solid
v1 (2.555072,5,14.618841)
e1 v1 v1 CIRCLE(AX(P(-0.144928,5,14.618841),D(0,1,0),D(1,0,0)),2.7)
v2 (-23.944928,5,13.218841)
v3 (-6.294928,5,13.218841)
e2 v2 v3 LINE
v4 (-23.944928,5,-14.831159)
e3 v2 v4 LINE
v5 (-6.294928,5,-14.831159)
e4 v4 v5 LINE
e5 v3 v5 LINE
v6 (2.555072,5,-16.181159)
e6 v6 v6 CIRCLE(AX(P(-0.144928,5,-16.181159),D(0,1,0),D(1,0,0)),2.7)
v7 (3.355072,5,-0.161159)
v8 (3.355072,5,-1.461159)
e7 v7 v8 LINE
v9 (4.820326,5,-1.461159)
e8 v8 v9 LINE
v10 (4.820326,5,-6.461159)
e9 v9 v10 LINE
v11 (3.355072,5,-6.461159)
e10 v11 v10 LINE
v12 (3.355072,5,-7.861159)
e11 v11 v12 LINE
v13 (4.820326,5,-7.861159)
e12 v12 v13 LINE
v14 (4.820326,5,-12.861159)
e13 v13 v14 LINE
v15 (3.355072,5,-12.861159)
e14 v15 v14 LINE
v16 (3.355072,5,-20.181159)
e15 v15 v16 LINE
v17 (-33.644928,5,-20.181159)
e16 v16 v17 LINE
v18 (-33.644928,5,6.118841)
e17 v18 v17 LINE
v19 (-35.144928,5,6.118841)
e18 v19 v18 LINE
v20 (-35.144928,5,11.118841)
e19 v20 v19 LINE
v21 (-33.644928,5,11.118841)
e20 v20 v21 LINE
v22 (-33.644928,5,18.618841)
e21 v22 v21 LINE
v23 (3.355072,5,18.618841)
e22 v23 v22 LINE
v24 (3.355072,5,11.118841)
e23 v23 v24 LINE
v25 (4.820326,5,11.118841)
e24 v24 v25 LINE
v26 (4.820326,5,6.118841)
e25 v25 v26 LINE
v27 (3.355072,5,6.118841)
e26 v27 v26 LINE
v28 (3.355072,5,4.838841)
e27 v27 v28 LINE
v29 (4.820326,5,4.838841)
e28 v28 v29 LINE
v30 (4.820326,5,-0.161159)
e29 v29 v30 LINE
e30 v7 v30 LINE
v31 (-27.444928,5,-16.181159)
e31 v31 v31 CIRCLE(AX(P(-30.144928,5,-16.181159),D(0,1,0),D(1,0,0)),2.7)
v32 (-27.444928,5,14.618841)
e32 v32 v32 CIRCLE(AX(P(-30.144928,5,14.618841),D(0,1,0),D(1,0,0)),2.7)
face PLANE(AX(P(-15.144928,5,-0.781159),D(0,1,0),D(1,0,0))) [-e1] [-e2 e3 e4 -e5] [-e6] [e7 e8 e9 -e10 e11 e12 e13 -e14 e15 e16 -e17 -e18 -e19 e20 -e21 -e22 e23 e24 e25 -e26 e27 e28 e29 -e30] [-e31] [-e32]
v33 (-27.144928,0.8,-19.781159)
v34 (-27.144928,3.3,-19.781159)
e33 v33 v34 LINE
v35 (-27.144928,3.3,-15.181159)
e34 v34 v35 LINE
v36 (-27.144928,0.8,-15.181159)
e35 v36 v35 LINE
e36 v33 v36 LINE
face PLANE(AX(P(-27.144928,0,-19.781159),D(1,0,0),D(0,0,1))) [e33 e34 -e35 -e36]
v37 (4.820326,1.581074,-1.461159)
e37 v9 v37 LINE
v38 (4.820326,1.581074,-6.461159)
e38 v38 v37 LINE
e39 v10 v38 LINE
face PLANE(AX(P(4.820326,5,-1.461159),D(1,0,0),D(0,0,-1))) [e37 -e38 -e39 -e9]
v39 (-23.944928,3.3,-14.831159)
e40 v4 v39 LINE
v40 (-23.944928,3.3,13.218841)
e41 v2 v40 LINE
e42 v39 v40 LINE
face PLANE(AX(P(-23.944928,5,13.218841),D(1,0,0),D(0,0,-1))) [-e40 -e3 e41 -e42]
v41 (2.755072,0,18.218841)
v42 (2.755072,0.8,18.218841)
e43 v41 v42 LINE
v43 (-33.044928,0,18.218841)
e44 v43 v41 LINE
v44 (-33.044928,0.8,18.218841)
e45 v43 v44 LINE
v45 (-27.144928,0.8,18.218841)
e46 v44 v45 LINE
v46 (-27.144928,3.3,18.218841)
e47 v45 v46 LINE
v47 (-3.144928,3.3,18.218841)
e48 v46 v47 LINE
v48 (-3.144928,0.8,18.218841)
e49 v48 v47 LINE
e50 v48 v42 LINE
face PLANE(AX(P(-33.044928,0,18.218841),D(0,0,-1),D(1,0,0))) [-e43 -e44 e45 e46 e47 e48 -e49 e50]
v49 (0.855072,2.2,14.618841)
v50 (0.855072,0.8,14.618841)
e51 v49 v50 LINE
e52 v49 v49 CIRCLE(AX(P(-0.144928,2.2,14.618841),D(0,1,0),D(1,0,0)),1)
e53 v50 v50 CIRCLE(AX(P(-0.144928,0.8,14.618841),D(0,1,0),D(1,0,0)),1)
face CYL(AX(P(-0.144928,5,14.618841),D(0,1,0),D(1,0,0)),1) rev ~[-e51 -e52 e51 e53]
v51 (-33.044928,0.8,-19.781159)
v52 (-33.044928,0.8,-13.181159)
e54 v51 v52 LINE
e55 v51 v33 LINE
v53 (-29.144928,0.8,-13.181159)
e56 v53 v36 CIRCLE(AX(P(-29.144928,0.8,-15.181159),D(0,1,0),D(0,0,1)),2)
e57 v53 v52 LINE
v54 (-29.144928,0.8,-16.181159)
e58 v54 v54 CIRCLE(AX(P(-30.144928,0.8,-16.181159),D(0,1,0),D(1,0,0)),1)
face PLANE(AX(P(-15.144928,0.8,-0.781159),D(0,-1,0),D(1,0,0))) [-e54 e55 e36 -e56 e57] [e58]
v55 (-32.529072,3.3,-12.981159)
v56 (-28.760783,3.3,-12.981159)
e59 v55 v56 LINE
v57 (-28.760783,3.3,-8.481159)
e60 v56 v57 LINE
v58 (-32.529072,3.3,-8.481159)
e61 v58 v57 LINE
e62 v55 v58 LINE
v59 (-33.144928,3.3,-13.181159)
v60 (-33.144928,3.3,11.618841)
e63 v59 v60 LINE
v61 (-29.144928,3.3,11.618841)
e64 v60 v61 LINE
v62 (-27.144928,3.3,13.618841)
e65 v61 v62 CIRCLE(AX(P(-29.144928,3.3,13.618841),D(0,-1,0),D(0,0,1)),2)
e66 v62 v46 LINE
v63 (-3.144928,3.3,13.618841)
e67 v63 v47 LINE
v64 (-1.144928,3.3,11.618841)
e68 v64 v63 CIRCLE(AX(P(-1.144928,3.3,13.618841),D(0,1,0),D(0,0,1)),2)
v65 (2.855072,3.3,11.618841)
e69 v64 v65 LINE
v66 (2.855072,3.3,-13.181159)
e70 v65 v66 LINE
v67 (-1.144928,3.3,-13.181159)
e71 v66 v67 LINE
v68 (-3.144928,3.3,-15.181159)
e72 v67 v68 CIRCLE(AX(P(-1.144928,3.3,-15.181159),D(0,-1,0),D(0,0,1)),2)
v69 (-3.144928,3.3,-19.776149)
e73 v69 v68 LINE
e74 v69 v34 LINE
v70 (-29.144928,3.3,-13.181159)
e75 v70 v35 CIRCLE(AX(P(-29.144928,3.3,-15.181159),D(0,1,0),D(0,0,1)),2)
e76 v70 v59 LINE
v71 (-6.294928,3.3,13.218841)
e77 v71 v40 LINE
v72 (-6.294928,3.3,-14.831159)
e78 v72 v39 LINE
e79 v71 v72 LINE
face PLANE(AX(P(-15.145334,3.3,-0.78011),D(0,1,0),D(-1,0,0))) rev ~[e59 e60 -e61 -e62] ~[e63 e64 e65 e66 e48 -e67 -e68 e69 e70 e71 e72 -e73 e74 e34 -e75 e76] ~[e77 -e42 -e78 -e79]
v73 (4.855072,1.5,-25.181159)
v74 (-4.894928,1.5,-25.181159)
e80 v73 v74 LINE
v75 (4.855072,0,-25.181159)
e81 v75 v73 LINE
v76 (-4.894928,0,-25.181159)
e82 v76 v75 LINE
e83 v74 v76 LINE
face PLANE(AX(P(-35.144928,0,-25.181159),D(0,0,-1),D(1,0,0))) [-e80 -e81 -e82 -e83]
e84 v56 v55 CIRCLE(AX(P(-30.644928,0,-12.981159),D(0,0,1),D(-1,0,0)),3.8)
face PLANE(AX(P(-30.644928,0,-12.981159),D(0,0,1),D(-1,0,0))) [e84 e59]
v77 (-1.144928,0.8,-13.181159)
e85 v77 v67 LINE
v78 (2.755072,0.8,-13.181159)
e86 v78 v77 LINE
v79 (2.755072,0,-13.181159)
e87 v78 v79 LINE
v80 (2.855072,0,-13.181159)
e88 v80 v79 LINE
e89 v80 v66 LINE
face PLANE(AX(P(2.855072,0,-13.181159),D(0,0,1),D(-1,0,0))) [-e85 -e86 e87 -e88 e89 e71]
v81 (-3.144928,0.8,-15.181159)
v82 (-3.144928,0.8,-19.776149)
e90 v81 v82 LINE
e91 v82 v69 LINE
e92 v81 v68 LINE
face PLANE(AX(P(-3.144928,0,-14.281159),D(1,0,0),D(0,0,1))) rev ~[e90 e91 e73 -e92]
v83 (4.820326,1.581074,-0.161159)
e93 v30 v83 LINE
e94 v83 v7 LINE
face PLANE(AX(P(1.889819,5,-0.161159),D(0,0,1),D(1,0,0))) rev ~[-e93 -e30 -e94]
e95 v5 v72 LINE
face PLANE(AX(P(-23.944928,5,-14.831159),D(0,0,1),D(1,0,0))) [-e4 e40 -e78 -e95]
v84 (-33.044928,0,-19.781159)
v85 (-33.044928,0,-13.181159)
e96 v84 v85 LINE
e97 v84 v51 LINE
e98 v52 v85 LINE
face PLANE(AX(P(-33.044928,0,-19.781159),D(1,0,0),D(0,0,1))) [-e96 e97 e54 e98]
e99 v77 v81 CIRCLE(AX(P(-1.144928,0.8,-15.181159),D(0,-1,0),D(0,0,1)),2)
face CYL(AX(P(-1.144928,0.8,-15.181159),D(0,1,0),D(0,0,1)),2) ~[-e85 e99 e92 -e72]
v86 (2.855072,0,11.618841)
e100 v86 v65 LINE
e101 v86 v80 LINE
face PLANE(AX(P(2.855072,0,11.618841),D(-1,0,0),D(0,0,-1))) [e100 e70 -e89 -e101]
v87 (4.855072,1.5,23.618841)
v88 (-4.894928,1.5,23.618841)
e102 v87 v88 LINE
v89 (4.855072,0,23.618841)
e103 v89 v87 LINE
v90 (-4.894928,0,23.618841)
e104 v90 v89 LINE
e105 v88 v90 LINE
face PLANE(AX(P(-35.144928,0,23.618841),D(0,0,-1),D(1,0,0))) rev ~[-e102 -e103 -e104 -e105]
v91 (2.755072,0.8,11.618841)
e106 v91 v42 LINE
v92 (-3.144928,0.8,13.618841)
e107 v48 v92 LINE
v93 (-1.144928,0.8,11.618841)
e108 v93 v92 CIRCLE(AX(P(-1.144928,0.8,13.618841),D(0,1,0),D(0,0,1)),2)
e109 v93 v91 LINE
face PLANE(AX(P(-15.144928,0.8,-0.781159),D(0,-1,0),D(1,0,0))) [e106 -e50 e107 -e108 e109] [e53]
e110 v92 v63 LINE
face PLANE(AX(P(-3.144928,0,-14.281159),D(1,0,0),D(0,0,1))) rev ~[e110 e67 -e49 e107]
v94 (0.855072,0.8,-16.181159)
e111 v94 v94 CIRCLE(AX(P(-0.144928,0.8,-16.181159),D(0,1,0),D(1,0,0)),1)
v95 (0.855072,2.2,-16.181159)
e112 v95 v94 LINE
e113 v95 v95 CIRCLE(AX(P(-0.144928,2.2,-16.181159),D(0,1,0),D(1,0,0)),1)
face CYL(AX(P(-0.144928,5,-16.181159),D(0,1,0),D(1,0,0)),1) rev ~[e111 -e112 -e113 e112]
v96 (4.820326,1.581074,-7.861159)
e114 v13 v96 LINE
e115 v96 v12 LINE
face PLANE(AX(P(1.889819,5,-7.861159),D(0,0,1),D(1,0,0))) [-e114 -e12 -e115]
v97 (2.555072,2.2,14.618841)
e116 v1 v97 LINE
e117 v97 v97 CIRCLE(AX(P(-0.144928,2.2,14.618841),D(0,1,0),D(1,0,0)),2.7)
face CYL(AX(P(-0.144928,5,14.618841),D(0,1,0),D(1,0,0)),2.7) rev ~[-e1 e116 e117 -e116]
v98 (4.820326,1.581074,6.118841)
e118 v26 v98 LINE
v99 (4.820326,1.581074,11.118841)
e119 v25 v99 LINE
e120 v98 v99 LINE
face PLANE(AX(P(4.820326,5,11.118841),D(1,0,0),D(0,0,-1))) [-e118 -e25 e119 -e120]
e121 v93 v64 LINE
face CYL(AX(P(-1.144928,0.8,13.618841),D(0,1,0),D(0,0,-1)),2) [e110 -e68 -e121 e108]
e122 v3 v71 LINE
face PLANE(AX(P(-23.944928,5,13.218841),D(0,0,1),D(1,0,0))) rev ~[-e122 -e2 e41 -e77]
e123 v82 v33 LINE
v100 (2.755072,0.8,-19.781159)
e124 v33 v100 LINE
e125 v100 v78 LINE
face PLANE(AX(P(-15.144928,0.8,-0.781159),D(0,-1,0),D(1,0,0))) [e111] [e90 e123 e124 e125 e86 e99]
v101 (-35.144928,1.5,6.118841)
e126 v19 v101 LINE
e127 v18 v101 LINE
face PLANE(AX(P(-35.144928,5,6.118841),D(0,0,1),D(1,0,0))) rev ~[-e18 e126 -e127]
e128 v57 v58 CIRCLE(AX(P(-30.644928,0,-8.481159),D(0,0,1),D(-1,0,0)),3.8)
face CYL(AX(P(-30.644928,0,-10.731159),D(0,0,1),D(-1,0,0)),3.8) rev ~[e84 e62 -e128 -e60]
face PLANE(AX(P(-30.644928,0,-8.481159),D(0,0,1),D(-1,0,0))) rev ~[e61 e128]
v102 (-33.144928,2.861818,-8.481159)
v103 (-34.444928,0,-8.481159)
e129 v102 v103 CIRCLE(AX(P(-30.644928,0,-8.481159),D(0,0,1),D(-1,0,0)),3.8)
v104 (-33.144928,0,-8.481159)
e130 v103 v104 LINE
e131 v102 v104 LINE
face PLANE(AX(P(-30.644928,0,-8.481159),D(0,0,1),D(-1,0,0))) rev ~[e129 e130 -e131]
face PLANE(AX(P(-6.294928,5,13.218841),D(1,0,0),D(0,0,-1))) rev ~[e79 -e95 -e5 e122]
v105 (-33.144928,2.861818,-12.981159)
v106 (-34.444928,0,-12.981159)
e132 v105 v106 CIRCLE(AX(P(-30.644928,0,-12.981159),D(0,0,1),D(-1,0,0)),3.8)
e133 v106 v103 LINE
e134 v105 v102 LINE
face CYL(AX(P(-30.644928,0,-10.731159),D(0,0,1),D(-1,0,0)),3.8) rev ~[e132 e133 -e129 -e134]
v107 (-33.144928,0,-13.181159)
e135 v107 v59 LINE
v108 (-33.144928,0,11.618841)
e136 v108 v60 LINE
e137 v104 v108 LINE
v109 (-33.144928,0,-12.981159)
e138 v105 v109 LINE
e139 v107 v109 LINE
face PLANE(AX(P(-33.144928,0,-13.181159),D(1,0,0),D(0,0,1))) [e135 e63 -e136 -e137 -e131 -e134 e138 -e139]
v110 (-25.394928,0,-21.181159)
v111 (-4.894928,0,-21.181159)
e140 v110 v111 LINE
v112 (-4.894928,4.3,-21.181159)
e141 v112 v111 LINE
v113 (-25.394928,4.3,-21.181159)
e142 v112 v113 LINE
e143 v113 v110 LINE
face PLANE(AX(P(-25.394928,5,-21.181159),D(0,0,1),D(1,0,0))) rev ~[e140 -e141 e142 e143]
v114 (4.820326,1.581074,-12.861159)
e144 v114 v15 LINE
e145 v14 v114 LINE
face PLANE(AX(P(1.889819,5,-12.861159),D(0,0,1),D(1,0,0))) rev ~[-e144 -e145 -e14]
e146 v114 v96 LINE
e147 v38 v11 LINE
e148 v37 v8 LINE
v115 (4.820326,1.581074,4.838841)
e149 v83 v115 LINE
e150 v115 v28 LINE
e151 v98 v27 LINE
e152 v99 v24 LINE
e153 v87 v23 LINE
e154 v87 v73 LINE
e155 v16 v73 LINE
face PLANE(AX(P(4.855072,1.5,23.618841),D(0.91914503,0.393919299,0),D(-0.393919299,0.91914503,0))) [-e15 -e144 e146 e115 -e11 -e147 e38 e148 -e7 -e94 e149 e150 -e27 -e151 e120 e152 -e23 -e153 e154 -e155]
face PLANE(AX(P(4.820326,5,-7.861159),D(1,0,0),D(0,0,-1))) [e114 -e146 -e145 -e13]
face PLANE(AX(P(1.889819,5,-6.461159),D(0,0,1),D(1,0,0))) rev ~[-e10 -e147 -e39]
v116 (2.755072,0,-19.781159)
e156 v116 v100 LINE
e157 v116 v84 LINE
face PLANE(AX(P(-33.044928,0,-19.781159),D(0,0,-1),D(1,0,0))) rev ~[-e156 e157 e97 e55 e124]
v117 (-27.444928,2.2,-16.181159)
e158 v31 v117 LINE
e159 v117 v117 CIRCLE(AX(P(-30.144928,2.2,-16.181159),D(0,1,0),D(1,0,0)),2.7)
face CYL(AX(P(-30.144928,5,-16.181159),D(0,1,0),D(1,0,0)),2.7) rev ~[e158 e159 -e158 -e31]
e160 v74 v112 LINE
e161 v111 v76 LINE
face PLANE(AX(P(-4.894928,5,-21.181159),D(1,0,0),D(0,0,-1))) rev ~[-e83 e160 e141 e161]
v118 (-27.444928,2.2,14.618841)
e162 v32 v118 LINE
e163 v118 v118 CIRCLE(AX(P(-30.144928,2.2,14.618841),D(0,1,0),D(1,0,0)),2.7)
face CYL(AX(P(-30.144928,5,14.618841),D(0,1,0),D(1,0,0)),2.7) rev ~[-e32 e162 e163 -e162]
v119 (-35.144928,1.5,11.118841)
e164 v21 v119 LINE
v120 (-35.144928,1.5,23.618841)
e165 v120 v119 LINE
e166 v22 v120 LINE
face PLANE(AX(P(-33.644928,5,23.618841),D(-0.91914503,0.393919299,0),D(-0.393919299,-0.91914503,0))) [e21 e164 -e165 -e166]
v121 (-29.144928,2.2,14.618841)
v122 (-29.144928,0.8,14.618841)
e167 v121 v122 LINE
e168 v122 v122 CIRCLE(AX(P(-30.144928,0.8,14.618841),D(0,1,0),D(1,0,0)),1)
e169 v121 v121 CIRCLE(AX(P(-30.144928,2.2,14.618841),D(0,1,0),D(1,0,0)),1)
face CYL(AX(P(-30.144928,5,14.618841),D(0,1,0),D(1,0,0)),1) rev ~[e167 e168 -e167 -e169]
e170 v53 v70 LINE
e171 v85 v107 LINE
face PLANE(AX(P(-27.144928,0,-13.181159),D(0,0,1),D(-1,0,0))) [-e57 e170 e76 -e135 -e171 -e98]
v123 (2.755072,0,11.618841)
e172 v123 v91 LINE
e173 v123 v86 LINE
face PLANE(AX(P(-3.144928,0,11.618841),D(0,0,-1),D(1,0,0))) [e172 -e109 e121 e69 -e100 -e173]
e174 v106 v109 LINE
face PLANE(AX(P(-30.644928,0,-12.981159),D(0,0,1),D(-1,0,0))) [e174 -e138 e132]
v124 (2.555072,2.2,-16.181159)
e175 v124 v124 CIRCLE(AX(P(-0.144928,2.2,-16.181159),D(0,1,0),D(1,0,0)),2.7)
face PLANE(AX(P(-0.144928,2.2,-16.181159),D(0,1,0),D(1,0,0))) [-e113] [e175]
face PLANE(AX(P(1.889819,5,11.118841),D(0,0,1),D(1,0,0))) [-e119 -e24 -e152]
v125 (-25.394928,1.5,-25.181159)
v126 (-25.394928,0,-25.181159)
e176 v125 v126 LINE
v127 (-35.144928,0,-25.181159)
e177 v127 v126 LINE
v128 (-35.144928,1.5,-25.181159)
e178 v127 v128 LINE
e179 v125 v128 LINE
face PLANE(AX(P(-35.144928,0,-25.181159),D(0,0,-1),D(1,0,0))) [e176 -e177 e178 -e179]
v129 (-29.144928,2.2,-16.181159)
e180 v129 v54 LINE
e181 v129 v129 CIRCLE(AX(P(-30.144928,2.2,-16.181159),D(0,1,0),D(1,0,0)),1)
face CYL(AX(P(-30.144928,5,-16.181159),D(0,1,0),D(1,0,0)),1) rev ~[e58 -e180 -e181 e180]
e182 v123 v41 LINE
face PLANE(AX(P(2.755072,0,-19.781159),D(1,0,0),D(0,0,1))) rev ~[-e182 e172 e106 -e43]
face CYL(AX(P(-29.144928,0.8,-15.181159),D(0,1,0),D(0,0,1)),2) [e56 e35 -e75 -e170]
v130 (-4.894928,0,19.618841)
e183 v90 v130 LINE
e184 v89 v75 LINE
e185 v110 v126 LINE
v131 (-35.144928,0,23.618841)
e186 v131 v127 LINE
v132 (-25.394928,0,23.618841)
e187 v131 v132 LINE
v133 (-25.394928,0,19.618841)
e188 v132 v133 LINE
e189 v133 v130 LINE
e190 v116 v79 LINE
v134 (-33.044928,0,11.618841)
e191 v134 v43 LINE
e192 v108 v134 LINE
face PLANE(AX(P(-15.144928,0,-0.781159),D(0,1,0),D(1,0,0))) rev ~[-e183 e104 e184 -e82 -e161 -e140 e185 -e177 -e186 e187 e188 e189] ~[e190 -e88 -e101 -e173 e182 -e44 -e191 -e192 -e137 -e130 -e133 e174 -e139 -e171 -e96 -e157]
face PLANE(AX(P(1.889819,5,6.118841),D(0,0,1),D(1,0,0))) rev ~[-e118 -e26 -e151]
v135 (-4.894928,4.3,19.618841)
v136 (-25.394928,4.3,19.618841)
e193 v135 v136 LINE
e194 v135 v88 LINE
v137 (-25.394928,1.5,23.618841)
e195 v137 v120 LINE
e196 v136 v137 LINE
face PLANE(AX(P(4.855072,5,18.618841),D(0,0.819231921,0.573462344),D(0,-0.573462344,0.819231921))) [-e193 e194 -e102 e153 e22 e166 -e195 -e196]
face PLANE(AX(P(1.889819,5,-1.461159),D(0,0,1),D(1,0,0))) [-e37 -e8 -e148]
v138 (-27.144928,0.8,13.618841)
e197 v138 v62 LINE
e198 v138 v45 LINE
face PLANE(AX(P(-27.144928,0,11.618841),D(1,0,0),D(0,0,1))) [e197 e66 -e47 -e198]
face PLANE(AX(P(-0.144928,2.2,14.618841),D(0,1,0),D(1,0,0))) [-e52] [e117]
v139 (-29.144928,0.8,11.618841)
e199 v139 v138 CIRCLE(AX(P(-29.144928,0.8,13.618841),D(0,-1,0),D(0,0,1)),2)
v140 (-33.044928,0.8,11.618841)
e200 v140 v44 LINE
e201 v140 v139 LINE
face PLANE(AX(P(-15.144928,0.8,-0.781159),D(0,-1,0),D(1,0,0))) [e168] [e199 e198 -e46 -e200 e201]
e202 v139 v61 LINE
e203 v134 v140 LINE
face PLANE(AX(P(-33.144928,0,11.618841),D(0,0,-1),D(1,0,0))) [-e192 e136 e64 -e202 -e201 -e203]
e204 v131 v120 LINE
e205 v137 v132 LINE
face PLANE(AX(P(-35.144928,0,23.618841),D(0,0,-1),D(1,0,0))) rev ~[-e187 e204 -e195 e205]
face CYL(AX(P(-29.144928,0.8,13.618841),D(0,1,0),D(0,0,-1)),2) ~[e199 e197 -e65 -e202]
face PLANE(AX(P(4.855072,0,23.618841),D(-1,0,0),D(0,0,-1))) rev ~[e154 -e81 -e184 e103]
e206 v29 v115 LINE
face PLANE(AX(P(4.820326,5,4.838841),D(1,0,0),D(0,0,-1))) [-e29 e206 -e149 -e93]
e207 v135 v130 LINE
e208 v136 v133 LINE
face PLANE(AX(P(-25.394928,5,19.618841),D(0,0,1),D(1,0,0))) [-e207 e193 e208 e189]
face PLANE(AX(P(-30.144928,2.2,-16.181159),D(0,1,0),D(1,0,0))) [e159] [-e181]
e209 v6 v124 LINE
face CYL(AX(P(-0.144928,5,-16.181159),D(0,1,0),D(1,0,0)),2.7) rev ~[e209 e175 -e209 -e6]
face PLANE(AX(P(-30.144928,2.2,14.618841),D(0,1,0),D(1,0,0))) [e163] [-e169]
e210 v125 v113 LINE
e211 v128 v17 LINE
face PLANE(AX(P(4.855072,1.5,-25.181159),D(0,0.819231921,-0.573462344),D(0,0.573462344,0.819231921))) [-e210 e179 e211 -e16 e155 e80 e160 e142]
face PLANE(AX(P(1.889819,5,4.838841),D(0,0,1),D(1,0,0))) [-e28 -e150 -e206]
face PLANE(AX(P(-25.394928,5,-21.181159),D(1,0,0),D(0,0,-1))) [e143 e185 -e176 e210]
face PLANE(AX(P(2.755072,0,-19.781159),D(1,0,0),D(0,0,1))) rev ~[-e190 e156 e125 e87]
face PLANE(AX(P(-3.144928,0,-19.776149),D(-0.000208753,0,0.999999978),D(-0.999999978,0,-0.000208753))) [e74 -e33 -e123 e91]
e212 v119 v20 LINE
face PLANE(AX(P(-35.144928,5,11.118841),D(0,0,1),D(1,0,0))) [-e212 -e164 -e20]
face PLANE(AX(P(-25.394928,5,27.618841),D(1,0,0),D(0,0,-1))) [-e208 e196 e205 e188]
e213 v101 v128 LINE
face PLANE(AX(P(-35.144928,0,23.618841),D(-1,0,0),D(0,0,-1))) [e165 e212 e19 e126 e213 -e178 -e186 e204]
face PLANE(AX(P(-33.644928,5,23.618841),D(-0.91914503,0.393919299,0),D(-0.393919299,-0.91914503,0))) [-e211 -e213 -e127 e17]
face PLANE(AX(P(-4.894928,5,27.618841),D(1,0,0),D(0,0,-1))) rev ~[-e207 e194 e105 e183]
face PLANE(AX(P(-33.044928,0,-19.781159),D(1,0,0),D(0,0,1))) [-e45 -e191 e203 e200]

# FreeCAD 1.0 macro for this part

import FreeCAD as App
import Part
import Sketcher
Q = App.Units.Quantity


def edges_at(feature, points):
    """Names of the edges that pass closest to the given points."""
    edges = feature.Shape.Edges
    near = lambda p: min(range(len(edges)), key=lambda i: edges[i].distToShape(Part.Vertex(*p))[0])
    return sorted({f"Edge{near(p) + 1}" for p in points})

doc = App.newDocument("Part")
body = doc.addObject("PartDesign::Body", "Body")

sketch1 = doc.addObject("Sketcher::SketchObject", "Sketch")
body.addObject(sketch1)
sketch1.AttachmentSupport = (doc.XZ_Plane, [""])
sketch1.MapMode = "FlatFace"
sketch1.addGeometry([
    Part.LineSegment(App.Vector(-35, -25, 0), App.Vector(-35, 24, 0)),
    Part.LineSegment(App.Vector(-35, 24, 0), App.Vector(5, 24, 0)),
    Part.LineSegment(App.Vector(5, 24, 0), App.Vector(5, -25, 0)),
    Part.LineSegment(App.Vector(5, -25, 0), App.Vector(-35, -25, 0)),
], False)
sketch1.addConstraint([
    Sketcher.Constraint("Coincident", 0, 2, 1, 1),
    Sketcher.Constraint("Coincident", 1, 2, 2, 1),
    Sketcher.Constraint("Coincident", 2, 2, 3, 1),
    Sketcher.Constraint("Coincident", 3, 2, 0, 1),
    Sketcher.Constraint("Vertical", 0),
    Sketcher.Constraint("Horizontal", 1),
    Sketcher.Constraint("Vertical", 2),
    Sketcher.Constraint("Horizontal", 3),
    Sketcher.Constraint("DistanceX", 1, 1, 1, 2, Q("40 mm")),
    Sketcher.Constraint("DistanceY", 0, 1, 0, 2, Q("48.8 mm")),
    Sketcher.Constraint("DistanceY", -1, 1, 0, 2, Q("23.618841 mm")),
    Sketcher.Constraint("DistanceX", 0, 2, -1, 1, Q("35.144928 mm")),
])
pad1 = doc.addObject("PartDesign::Pad", "Pad")
body.addObject(pad1)
pad1.Profile = sketch1
pad1.Length = 5
pad1.Reversed = True

sketch2 = doc.addObject("Sketcher::SketchObject", "Sketch001")
body.addObject(sketch2)
sketch2.AttachmentSupport = (doc.XZ_Plane, [""])
sketch2.MapMode = "FlatFace"
sketch2.AttachmentOffset = App.Placement(App.Vector(0, 0, -5), App.Rotation())
sketch2.addGeometry([
    Part.LineSegment(App.Vector(-25, 20, 0), App.Vector(-25, 28, 0)),
    Part.LineSegment(App.Vector(-25, 28, 0), App.Vector(-5, 28, 0)),
    Part.LineSegment(App.Vector(-5, 28, 0), App.Vector(-5, 20, 0)),
    Part.LineSegment(App.Vector(-5, 20, 0), App.Vector(-25, 20, 0)),
    Part.LineSegment(App.Vector(-25, -29, 0), App.Vector(-25, -21, 0)),
    Part.LineSegment(App.Vector(-25, -21, 0), App.Vector(-5, -21, 0)),
    Part.LineSegment(App.Vector(-5, -21, 0), App.Vector(-5, -29, 0)),
    Part.LineSegment(App.Vector(-5, -29, 0), App.Vector(-25, -29, 0)),
], False)
sketch2.addConstraint([
    Sketcher.Constraint("Coincident", 0, 2, 1, 1),
    Sketcher.Constraint("Coincident", 1, 2, 2, 1),
    Sketcher.Constraint("Coincident", 2, 2, 3, 1),
    Sketcher.Constraint("Coincident", 3, 2, 0, 1),
    Sketcher.Constraint("Coincident", 4, 2, 5, 1),
    Sketcher.Constraint("Coincident", 5, 2, 6, 1),
    Sketcher.Constraint("Coincident", 6, 2, 7, 1),
    Sketcher.Constraint("Coincident", 7, 2, 4, 1),
    Sketcher.Constraint("Vertical", 0),
    Sketcher.Constraint("Horizontal", 1),
    Sketcher.Constraint("Vertical", 2),
    Sketcher.Constraint("Horizontal", 3),
    Sketcher.Constraint("Vertical", 4),
    Sketcher.Constraint("Horizontal", 5),
    Sketcher.Constraint("Vertical", 6),
    Sketcher.Constraint("Horizontal", 7),
    Sketcher.Constraint("Vertical", 3, 2, 4, 2),
    Sketcher.Constraint("Vertical", 2, 2, 5, 2),
    Sketcher.Constraint("Equal", 2, 4),
    Sketcher.Constraint("DistanceY", 0, 1, 0, 2, Q("8 mm")),
    Sketcher.Constraint("DistanceX", 1, 1, 1, 2, Q("20.5 mm")),
    Sketcher.Constraint("DistanceY", 4, 2, 3, 2, Q("40.8 mm")),
    Sketcher.Constraint("DistanceY", -1, 1, 0, 2, Q("27.618841 mm")),
    Sketcher.Constraint("DistanceX", 0, 2, -1, 1, Q("25.394928 mm")),
])
pocket1 = doc.addObject("PartDesign::Pocket", "Pocket")
body.addObject(pocket1)
pocket1.Profile = sketch2
pocket1.Type = "ThroughAll"
pocket1.Reversed = True

sketch3 = doc.addObject("Sketcher::SketchObject", "Sketch002")
body.addObject(sketch3)
sketch3.AttachmentSupport = (doc.XZ_Plane, [""])
sketch3.MapMode = "FlatFace"
sketch3.AttachmentOffset = App.Placement(App.Vector(0, 0, -5), App.Rotation())
sketch3.addGeometry([
    Part.Circle(App.Vector(-30.1, -16.2, 0), App.Vector(0, 0, 1), 2.7),
    Part.Circle(App.Vector(-0.1, -16.2, 0), App.Vector(0, 0, 1), 2.7),
    Part.Circle(App.Vector(-30.1, 14.6, 0), App.Vector(0, 0, 1), 2.7),
    Part.Circle(App.Vector(-0.1, 14.6, 0), App.Vector(0, 0, 1), 2.7),
], False)
sketch3.addConstraint([
    Sketcher.Constraint("Equal", 0, 1),
    Sketcher.Constraint("Equal", 1, 2),
    Sketcher.Constraint("Equal", 2, 3),
    Sketcher.Constraint("Horizontal", 0, 3, 1, 3),
    Sketcher.Constraint("Horizontal", 2, 3, 3, 3),
    Sketcher.Constraint("Vertical", 0, 3, 2, 3),
    Sketcher.Constraint("Vertical", 1, 3, 3, 3),
    Sketcher.Constraint("Diameter", 0, Q("5.4 mm")),
    Sketcher.Constraint("DistanceX", 0, 3, 1, 3, Q("30 mm")),
    Sketcher.Constraint("DistanceY", 0, 3, 2, 3, Q("30.8 mm")),
    Sketcher.Constraint("DistanceY", 0, 3, -1, 1, Q("16.181159 mm")),
    Sketcher.Constraint("DistanceX", 0, 3, -1, 1, Q("30.144928 mm")),
])
pocket2 = doc.addObject("PartDesign::Pocket", "Pocket001")
body.addObject(pocket2)
pocket2.Profile = sketch3
pocket2.Length = 2.8
pocket2.Reversed = True

sketch4 = doc.addObject("Sketcher::SketchObject", "Sketch003")
body.addObject(sketch4)
sketch4.AttachmentSupport = (doc.XZ_Plane, [""])
sketch4.MapMode = "FlatFace"
sketch4.AttachmentOffset = App.Placement(App.Vector(0, 0, -5), App.Rotation())
sketch4.addGeometry([
    Part.Circle(App.Vector(-30.1, 14.6, 0), App.Vector(0, 0, 1), 1),
    Part.Circle(App.Vector(-0.1, 14.6, 0), App.Vector(0, 0, 1), 1),
    Part.Circle(App.Vector(-0.1, -16.2, 0), App.Vector(0, 0, 1), 1),
    Part.Circle(App.Vector(-30.1, -16.2, 0), App.Vector(0, 0, 1), 1),
], False)
sketch4.addConstraint([
    Sketcher.Constraint("Equal", 0, 1),
    Sketcher.Constraint("Equal", 1, 2),
    Sketcher.Constraint("Equal", 2, 3),
    Sketcher.Constraint("Horizontal", 0, 3, 1, 3),
    Sketcher.Constraint("Horizontal", 2, 3, 3, 3),
    Sketcher.Constraint("Vertical", 1, 3, 2, 3),
    Sketcher.Constraint("Vertical", 0, 3, 3, 3),
    Sketcher.Constraint("Diameter", 0, Q("2 mm")),
    Sketcher.Constraint("DistanceX", 0, 3, 1, 3, Q("30 mm")),
    Sketcher.Constraint("DistanceY", 2, 3, 1, 3, Q("30.8 mm")),
    Sketcher.Constraint("DistanceY", -1, 1, 0, 3, Q("14.618841 mm")),
    Sketcher.Constraint("DistanceX", 0, 3, -1, 1, Q("30.144928 mm")),
])
pocket3 = doc.addObject("PartDesign::Pocket", "Pocket002")
body.addObject(pocket3)
pocket3.Profile = sketch4
pocket3.Type = "ThroughAll"
pocket3.Reversed = True

sketch5 = doc.addObject("Sketcher::SketchObject", "Sketch004")
body.addObject(sketch5)
sketch5.AttachmentSupport = (doc.YZ_Plane, [""])
sketch5.MapMode = "FlatFace"
sketch5.AttachmentOffset = App.Placement(App.Vector(0, 0, 4.855072), App.Rotation())
sketch5.addGeometry([
    Part.LineSegment(App.Vector(12.3, 30.9, 0), App.Vector(-7.3, 30.9, 0)),
    Part.LineSegment(App.Vector(-7.3, 30.9, 0), App.Vector(-7.3, -32.5, 0)),
    Part.LineSegment(App.Vector(-7.3, -32.5, 0), App.Vector(12.3, -32.5, 0)),
    Part.LineSegment(App.Vector(12.3, -32.5, 0), App.Vector(12.3, 30.9, 0)),
    Part.LineSegment(App.Vector(1.5, 23.6, 0), App.Vector(5, 18.6, 0)),
    Part.LineSegment(App.Vector(5, 18.6, 0), App.Vector(5, -20.2, 0)),
    Part.LineSegment(App.Vector(5, -20.2, 0), App.Vector(1.5, -25.2, 0)),
    Part.LineSegment(App.Vector(1.5, -25.2, 0), App.Vector(0, -25.2, 0)),
    Part.LineSegment(App.Vector(0, -25.2, 0), App.Vector(0, 23.6, 0)),
    Part.LineSegment(App.Vector(0, 23.6, 0), App.Vector(1.5, 23.6, 0)),
], False)
sketch5.addConstraint([
    Sketcher.Constraint("Coincident", 0, 2, 1, 1),
    Sketcher.Constraint("Coincident", 1, 2, 2, 1),
    Sketcher.Constraint("Coincident", 2, 2, 3, 1),
    Sketcher.Constraint("Coincident", 3, 2, 0, 1),
    Sketcher.Constraint("Coincident", 4, 2, 5, 1),
    Sketcher.Constraint("Coincident", 5, 2, 6, 1),
    Sketcher.Constraint("Coincident", 6, 2, 7, 1),
    Sketcher.Constraint("Coincident", 7, 2, 8, 1),
    Sketcher.Constraint("Coincident", 8, 2, 9, 1),
    Sketcher.Constraint("Coincident", 9, 2, 4, 1),
    Sketcher.Constraint("Horizontal", 0),
    Sketcher.Constraint("Vertical", 1),
    Sketcher.Constraint("Horizontal", 2),
    Sketcher.Constraint("Vertical", 3),
    Sketcher.Constraint("Vertical", 5),
    Sketcher.Constraint("Horizontal", 7),
    Sketcher.Constraint("Vertical", 8),
    Sketcher.Constraint("Horizontal", 9),
    Sketcher.Constraint("PointOnObject", 7, 2, -2),
    Sketcher.Constraint("Vertical", 6, 2, 9, 2),
    Sketcher.Constraint("Equal", 4, 6),
    Sketcher.Constraint("DistanceX", 7, 2, 7, 1, Q("1.5 mm")),
    Sketcher.Constraint("DistanceY", 5, 2, 5, 1, Q("38.8 mm")),
    Sketcher.Constraint("DistanceY", 8, 1, 8, 2, Q("48.8 mm")),
    Sketcher.Constraint("DistanceX", -1, 1, 4, 2, Q("5 mm")),
    Sketcher.Constraint("DistanceX", 0, 2, 0, 1, Q("19.66 mm")),
    Sketcher.Constraint("DistanceY", 1, 2, 1, 1, Q("63.46 mm")),
    Sketcher.Constraint("DistanceX", 0, 2, -1, 1, Q("7.33 mm")),
    Sketcher.Constraint("DistanceY", -1, 1, 0, 2, Q("30.949 mm")),
    Sketcher.Constraint("DistanceY", -1, 1, 4, 2, Q("18.618841 mm")),
])
pocket4 = doc.addObject("PartDesign::Pocket", "Pocket003")
body.addObject(pocket4)
pocket4.Profile = sketch5
pocket4.Type = "ThroughAll"

sketch6 = doc.addObject("Sketcher::SketchObject", "Sketch005")
body.addObject(sketch6)
sketch6.AttachmentSupport = (doc.XY_Plane, [""])
sketch6.MapMode = "FlatFace"
sketch6.AttachmentOffset = App.Placement(App.Vector(0, 0, 23.618841), App.Rotation())
sketch6.addGeometry([
    Part.LineSegment(App.Vector(-42.5, 12.3, 0), App.Vector(-42.5, -7.3, 0)),
    Part.LineSegment(App.Vector(-42.5, -7.3, 0), App.Vector(12.2, -7.3, 0)),
    Part.LineSegment(App.Vector(12.2, -7.3, 0), App.Vector(12.2, 12.3, 0)),
    Part.LineSegment(App.Vector(12.2, 12.3, 0), App.Vector(-42.5, 12.3, 0)),
    Part.LineSegment(App.Vector(3.4, 5, 0), App.Vector(4.9, 1.5, 0)),
    Part.LineSegment(App.Vector(4.9, 1.5, 0), App.Vector(4.9, 0, 0)),
    Part.LineSegment(App.Vector(4.9, 0, 0), App.Vector(-35.1, 0, 0)),
    Part.LineSegment(App.Vector(-35.1, 0, 0), App.Vector(-35.1, 1.5, 0)),
    Part.LineSegment(App.Vector(-35.1, 1.5, 0), App.Vector(-33.6, 5, 0)),
    Part.LineSegment(App.Vector(-33.6, 5, 0), App.Vector(3.4, 5, 0)),
], False)
sketch6.addConstraint([
    Sketcher.Constraint("Coincident", 0, 2, 1, 1),
    Sketcher.Constraint("Coincident", 1, 2, 2, 1),
    Sketcher.Constraint("Coincident", 2, 2, 3, 1),
    Sketcher.Constraint("Coincident", 3, 2, 0, 1),
    Sketcher.Constraint("Coincident", 4, 2, 5, 1),
    Sketcher.Constraint("Coincident", 5, 2, 6, 1),
    Sketcher.Constraint("Coincident", 6, 2, 7, 1),
    Sketcher.Constraint("Coincident", 7, 2, 8, 1),
    Sketcher.Constraint("Coincident", 8, 2, 9, 1),
    Sketcher.Constraint("Coincident", 9, 2, 4, 1),
    Sketcher.Constraint("Vertical", 0),
    Sketcher.Constraint("Horizontal", 1),
    Sketcher.Constraint("Vertical", 2),
    Sketcher.Constraint("Horizontal", 3),
    Sketcher.Constraint("Vertical", 5),
    Sketcher.Constraint("Horizontal", 6),
    Sketcher.Constraint("Vertical", 7),
    Sketcher.Constraint("Horizontal", 9),
    Sketcher.Constraint("PointOnObject", 5, 2, -1),
    Sketcher.Constraint("Horizontal", 4, 2, 7, 2),
    Sketcher.Constraint("Equal", 4, 8),
    Sketcher.Constraint("DistanceX", 6, 2, 6, 1, Q("40 mm")),
    Sketcher.Constraint("DistanceX", 9, 1, 9, 2, Q("37 mm")),
    Sketcher.Constraint("DistanceY", 5, 2, 5, 1, Q("1.5 mm")),
    Sketcher.Constraint("DistanceY", -1, 1, 8, 2, Q("5 mm")),
    Sketcher.Constraint("DistanceX", 1, 1, 1, 2, Q("54.66 mm")),
    Sketcher.Constraint("DistanceY", 0, 2, 0, 1, Q("19.66 mm")),
    Sketcher.Constraint("DistanceY", 0, 2, -1, 1, Q("7.33 mm")),
    Sketcher.Constraint("DistanceX", 0, 2, -1, 1, Q("42.475 mm")),
    Sketcher.Constraint("DistanceX", -1, 1, 4, 2, Q("4.855072 mm")),
])
pocket5 = doc.addObject("PartDesign::Pocket", "Pocket004")
body.addObject(pocket5)
pocket5.Profile = sketch6
pocket5.Type = "ThroughAll"

sketch7 = doc.addObject("Sketcher::SketchObject", "Sketch006")
body.addObject(sketch7)
sketch7.AttachmentSupport = (doc.XZ_Plane, [""])
sketch7.MapMode = "FlatFace"
sketch7.AttachmentOffset = App.Placement(App.Vector(0, 0, -5), App.Rotation())
sketch7.addGeometry([
    Part.LineSegment(App.Vector(-24, -15, 0), App.Vector(-24, 13, 0)),
    Part.LineSegment(App.Vector(-24, 13, 0), App.Vector(-6, 13, 0)),
    Part.LineSegment(App.Vector(-6, 13, 0), App.Vector(-6, -15, 0)),
    Part.LineSegment(App.Vector(-6, -15, 0), App.Vector(-24, -15, 0)),
], False)
sketch7.addConstraint([
    Sketcher.Constraint("Coincident", 0, 2, 1, 1),
    Sketcher.Constraint("Coincident", 1, 2, 2, 1),
    Sketcher.Constraint("Coincident", 2, 2, 3, 1),
    Sketcher.Constraint("Coincident", 3, 2, 0, 1),
    Sketcher.Constraint("Vertical", 0),
    Sketcher.Constraint("Horizontal", 1),
    Sketcher.Constraint("Vertical", 2),
    Sketcher.Constraint("Horizontal", 3),
    Sketcher.Constraint("DistanceX", 1, 1, 1, 2, Q("17.65 mm")),
    Sketcher.Constraint("DistanceY", 0, 1, 0, 2, Q("28.05 mm")),
    Sketcher.Constraint("DistanceY", -1, 1, 0, 2, Q("13.218841 mm")),
    Sketcher.Constraint("DistanceX", 0, 2, -1, 1, Q("23.944928 mm")),
])
pocket6 = doc.addObject("PartDesign::Pocket", "Pocket005")
body.addObject(pocket6)
pocket6.Profile = sketch7
pocket6.Type = "ThroughAll"
pocket6.Reversed = True

sketch8 = doc.addObject("Sketcher::SketchObject", "Sketch007")
body.addObject(sketch8)
sketch8.AttachmentSupport = (doc.XZ_Plane, [""])
sketch8.MapMode = "FlatFace"
sketch8.AttachmentOffset = App.Placement(App.Vector(0, 0, -5), App.Rotation())
sketch8.addGeometry([
    Part.LineSegment(App.Vector(1.9, -12.9, 0), App.Vector(1.9, -7.9, 0)),
    Part.LineSegment(App.Vector(1.9, -7.9, 0), App.Vector(4.8, -7.9, 0)),
    Part.LineSegment(App.Vector(4.8, -7.9, 0), App.Vector(4.8, -12.9, 0)),
    Part.LineSegment(App.Vector(4.8, -12.9, 0), App.Vector(1.9, -12.9, 0)),
], False)
sketch8.addConstraint([
    Sketcher.Constraint("Coincident", 0, 2, 1, 1),
    Sketcher.Constraint("Coincident", 1, 2, 2, 1),
    Sketcher.Constraint("Coincident", 2, 2, 3, 1),
    Sketcher.Constraint("Coincident", 3, 2, 0, 1),
    Sketcher.Constraint("Vertical", 0),
    Sketcher.Constraint("Horizontal", 1),
    Sketcher.Constraint("Vertical", 2),
    Sketcher.Constraint("Horizontal", 3),
    Sketcher.Constraint("DistanceY", 0, 1, 0, 2, Q("5 mm")),
    Sketcher.Constraint("DistanceX", 1, 1, 1, 2, Q("2.930508 mm")),
    Sketcher.Constraint("DistanceX", -1, 1, 0, 2, Q("1.889819 mm")),
    Sketcher.Constraint("DistanceY", 0, 2, -1, 1, Q("7.861159 mm")),
])
pad2 = doc.addObject("PartDesign::Pad", "Pad001")
body.addObject(pad2)
pad2.Profile = sketch8
pad2.Type = "UpToFirst"

sketch9 = doc.addObject("Sketcher::SketchObject", "Sketch008")
body.addObject(sketch9)
sketch9.AttachmentSupport = (doc.XZ_Plane, [""])
sketch9.MapMode = "FlatFace"
sketch9.AttachmentOffset = App.Placement(App.Vector(0, 0, -5), App.Rotation())
sketch9.addGeometry([
    Part.LineSegment(App.Vector(1.9, -6.5, 0), App.Vector(1.9, -1.5, 0)),
    Part.LineSegment(App.Vector(1.9, -1.5, 0), App.Vector(4.8, -1.5, 0)),
    Part.LineSegment(App.Vector(4.8, -1.5, 0), App.Vector(4.8, -6.5, 0)),
    Part.LineSegment(App.Vector(4.8, -6.5, 0), App.Vector(1.9, -6.5, 0)),
], False)
sketch9.addConstraint([
    Sketcher.Constraint("Coincident", 0, 2, 1, 1),
    Sketcher.Constraint("Coincident", 1, 2, 2, 1),
    Sketcher.Constraint("Coincident", 2, 2, 3, 1),
    Sketcher.Constraint("Coincident", 3, 2, 0, 1),
    Sketcher.Constraint("Vertical", 0),
    Sketcher.Constraint("Horizontal", 1),
    Sketcher.Constraint("Vertical", 2),
    Sketcher.Constraint("Horizontal", 3),
    Sketcher.Constraint("DistanceY", 0, 1, 0, 2, Q("5 mm")),
    Sketcher.Constraint("DistanceX", 1, 1, 1, 2, Q("2.930508 mm")),
    Sketcher.Constraint("DistanceX", -1, 1, 0, 2, Q("1.889819 mm")),
    Sketcher.Constraint("DistanceY", 0, 2, -1, 1, Q("1.461159 mm")),
])
pad3 = doc.addObject("PartDesign::Pad", "Pad002")
body.addObject(pad3)
pad3.Profile = sketch9
pad3.Type = "UpToFirst"

sketch10 = doc.addObject("Sketcher::SketchObject", "Sketch009")
body.addObject(sketch10)
sketch10.AttachmentSupport = (doc.XZ_Plane, [""])
sketch10.MapMode = "FlatFace"
sketch10.AttachmentOffset = App.Placement(App.Vector(0, 0, -5), App.Rotation())
sketch10.addGeometry([
    Part.LineSegment(App.Vector(1.9, -0.2, 0), App.Vector(1.9, 4.8, 0)),
    Part.LineSegment(App.Vector(1.9, 4.8, 0), App.Vector(4.8, 4.8, 0)),
    Part.LineSegment(App.Vector(4.8, 4.8, 0), App.Vector(4.8, -0.2, 0)),
    Part.LineSegment(App.Vector(4.8, -0.2, 0), App.Vector(1.9, -0.2, 0)),
], False)
sketch10.addConstraint([
    Sketcher.Constraint("Coincident", 0, 2, 1, 1),
    Sketcher.Constraint("Coincident", 1, 2, 2, 1),
    Sketcher.Constraint("Coincident", 2, 2, 3, 1),
    Sketcher.Constraint("Coincident", 3, 2, 0, 1),
    Sketcher.Constraint("Vertical", 0),
    Sketcher.Constraint("Horizontal", 1),
    Sketcher.Constraint("Vertical", 2),
    Sketcher.Constraint("Horizontal", 3),
    Sketcher.Constraint("DistanceY", 0, 1, 0, 2, Q("5 mm")),
    Sketcher.Constraint("DistanceX", 1, 1, 1, 2, Q("2.930508 mm")),
    Sketcher.Constraint("DistanceX", -1, 1, 0, 2, Q("1.889819 mm")),
    Sketcher.Constraint("DistanceY", -1, 1, 0, 2, Q("4.838841 mm")),
])
pad4 = doc.addObject("PartDesign::Pad", "Pad003")
body.addObject(pad4)
pad4.Profile = sketch10
pad4.Type = "UpToFirst"

sketch11 = doc.addObject("Sketcher::SketchObject", "Sketch010")
body.addObject(sketch11)
sketch11.AttachmentSupport = (doc.XZ_Plane, [""])
sketch11.MapMode = "FlatFace"
sketch11.AttachmentOffset = App.Placement(App.Vector(0, 0, -5), App.Rotation())
sketch11.addGeometry([
    Part.LineSegment(App.Vector(1.9, 6.1, 0), App.Vector(1.9, 11.1, 0)),
    Part.LineSegment(App.Vector(1.9, 11.1, 0), App.Vector(4.8, 11.1, 0)),
    Part.LineSegment(App.Vector(4.8, 11.1, 0), App.Vector(4.8, 6.1, 0)),
    Part.LineSegment(App.Vector(4.8, 6.1, 0), App.Vector(1.9, 6.1, 0)),
], False)
sketch11.addConstraint([
    Sketcher.Constraint("Coincident", 0, 2, 1, 1),
    Sketcher.Constraint("Coincident", 1, 2, 2, 1),
    Sketcher.Constraint("Coincident", 2, 2, 3, 1),
    Sketcher.Constraint("Coincident", 3, 2, 0, 1),
    Sketcher.Constraint("Vertical", 0),
    Sketcher.Constraint("Horizontal", 1),
    Sketcher.Constraint("Vertical", 2),
    Sketcher.Constraint("Horizontal", 3),
    Sketcher.Constraint("DistanceY", 0, 1, 0, 2, Q("5 mm")),
    Sketcher.Constraint("DistanceX", 1, 1, 1, 2, Q("2.930508 mm")),
    Sketcher.Constraint("DistanceX", -1, 1, 0, 2, Q("1.889819 mm")),
    Sketcher.Constraint("DistanceY", -1, 1, 0, 2, Q("11.118841 mm")),
])
pad5 = doc.addObject("PartDesign::Pad", "Pad004")
body.addObject(pad5)
pad5.Profile = sketch11
pad5.Type = "UpToFirst"

sketch12 = doc.addObject("Sketcher::SketchObject", "Sketch011")
body.addObject(sketch12)
sketch12.AttachmentSupport = (doc.XZ_Plane, [""])
sketch12.MapMode = "FlatFace"
sketch12.AttachmentOffset = App.Placement(App.Vector(0, 0, -5), App.Rotation())
sketch12.addGeometry([
    Part.LineSegment(App.Vector(-35.1, 6.1, 0), App.Vector(-35.1, 11.1, 0)),
    Part.LineSegment(App.Vector(-35.1, 11.1, 0), App.Vector(-32.1, 11.1, 0)),
    Part.LineSegment(App.Vector(-32.1, 11.1, 0), App.Vector(-32.1, 6.1, 0)),
    Part.LineSegment(App.Vector(-32.1, 6.1, 0), App.Vector(-35.1, 6.1, 0)),
], False)
sketch12.addConstraint([
    Sketcher.Constraint("Coincident", 0, 2, 1, 1),
    Sketcher.Constraint("Coincident", 1, 2, 2, 1),
    Sketcher.Constraint("Coincident", 2, 2, 3, 1),
    Sketcher.Constraint("Coincident", 3, 2, 0, 1),
    Sketcher.Constraint("Vertical", 0),
    Sketcher.Constraint("Horizontal", 1),
    Sketcher.Constraint("Vertical", 2),
    Sketcher.Constraint("Horizontal", 3),
    Sketcher.Constraint("DistanceX", 1, 1, 1, 2, Q("3 mm")),
    Sketcher.Constraint("DistanceY", 0, 1, 0, 2, Q("5 mm")),
    Sketcher.Constraint("DistanceY", -1, 1, 0, 2, Q("11.118841 mm")),
    Sketcher.Constraint("DistanceX", 0, 2, -1, 1, Q("35.144928 mm")),
])
pad6 = doc.addObject("PartDesign::Pad", "Pad005")
body.addObject(pad6)
pad6.Profile = sketch12
pad6.Type = "UpToFirst"

sketch13 = doc.addObject("Sketcher::SketchObject", "Sketch012")
body.addObject(sketch13)
sketch13.AttachmentSupport = (doc.XZ_Plane, [""])
sketch13.MapMode = "FlatFace"
sketch13.addGeometry([
    Part.LineSegment(App.Vector(-33, 18, 0), App.Vector(-33, -20, 0)),
    Part.LineSegment(App.Vector(-33, -20, 0), App.Vector(3, -20, 0)),
    Part.LineSegment(App.Vector(3, -20, 0), App.Vector(3, 18, 0)),
    Part.LineSegment(App.Vector(3, 18, 0), App.Vector(-33, 18, 0)),
], False)
sketch13.addConstraint([
    Sketcher.Constraint("Coincident", 0, 2, 1, 1),
    Sketcher.Constraint("Coincident", 1, 2, 2, 1),
    Sketcher.Constraint("Coincident", 2, 2, 3, 1),
    Sketcher.Constraint("Coincident", 3, 2, 0, 1),
    Sketcher.Constraint("Vertical", 0),
    Sketcher.Constraint("Horizontal", 1),
    Sketcher.Constraint("Vertical", 2),
    Sketcher.Constraint("Horizontal", 3),
    Sketcher.Constraint("DistanceY", 0, 2, 0, 1, Q("38 mm")),
    Sketcher.Constraint("DistanceX", 1, 1, 1, 2, Q("35.8 mm")),
    Sketcher.Constraint("DistanceY", 0, 2, -1, 1, Q("19.781159 mm")),
    Sketcher.Constraint("DistanceX", 0, 2, -1, 1, Q("33.044928 mm")),
])
pocket7 = doc.addObject("PartDesign::Pocket", "Pocket006")
body.addObject(pocket7)
pocket7.Profile = sketch13
pocket7.Length = 0.8

sketch14 = doc.addObject("Sketcher::SketchObject", "Sketch013")
body.addObject(sketch14)
sketch14.AttachmentSupport = (doc.XZ_Plane, [""])
sketch14.MapMode = "FlatFace"
sketch14.addGeometry([
    Part.LineSegment(App.Vector(-33, 11, 0), App.Vector(-33, -13, 0)),
    Part.LineSegment(App.Vector(-33, -13, 0), App.Vector(3, -13, 0)),
    Part.LineSegment(App.Vector(3, -13, 0), App.Vector(3, 11, 0)),
    Part.LineSegment(App.Vector(3, 11, 0), App.Vector(-33, 11, 0)),
], False)
sketch14.addConstraint([
    Sketcher.Constraint("Coincident", 0, 2, 1, 1),
    Sketcher.Constraint("Coincident", 1, 2, 2, 1),
    Sketcher.Constraint("Coincident", 2, 2, 3, 1),
    Sketcher.Constraint("Coincident", 3, 2, 0, 1),
    Sketcher.Constraint("Vertical", 0),
    Sketcher.Constraint("Horizontal", 1),
    Sketcher.Constraint("Vertical", 2),
    Sketcher.Constraint("Horizontal", 3),
    Sketcher.Constraint("DistanceX", 1, 1, 1, 2, Q("36 mm")),
    Sketcher.Constraint("DistanceY", 0, 2, 0, 1, Q("24 mm")),
    Sketcher.Constraint("DistanceY", 0, 2, -1, 1, Q("12.781159 mm")),
    Sketcher.Constraint("DistanceX", 0, 2, -1, 1, Q("33.144928 mm")),
])
pocket8 = doc.addObject("PartDesign::Pocket", "Pocket007")
body.addObject(pocket8)
pocket8.Profile = sketch14
pocket8.Length = 2.8

sketch15 = doc.addObject("Sketcher::SketchObject", "Sketch014")
body.addObject(sketch15)
sketch15.AttachmentSupport = (doc.XZ_Plane, [""])
sketch15.MapMode = "FlatFace"
sketch15.addGeometry([
    Part.LineSegment(App.Vector(-7.1, 12.4, 0), App.Vector(-7.1, -14.3, 0)),
    Part.LineSegment(App.Vector(-7.1, -14.3, 0), App.Vector(-3.1, -14.3, 0)),
    Part.LineSegment(App.Vector(-3.1, -14.3, 0), App.Vector(-3.1, 12.4, 0)),
    Part.LineSegment(App.Vector(-3.1, 12.4, 0), App.Vector(-7.1, 12.4, 0)),
], False)
sketch15.addConstraint([
    Sketcher.Constraint("Coincident", 0, 2, 1, 1),
    Sketcher.Constraint("Coincident", 1, 2, 2, 1),
    Sketcher.Constraint("Coincident", 2, 2, 3, 1),
    Sketcher.Constraint("Coincident", 3, 2, 0, 1),
    Sketcher.Constraint("Vertical", 0),
    Sketcher.Constraint("Horizontal", 1),
    Sketcher.Constraint("Vertical", 2),
    Sketcher.Constraint("Horizontal", 3),
    Sketcher.Constraint("DistanceX", 1, 1, 1, 2, Q("4 mm")),
    Sketcher.Constraint("DistanceY", 0, 2, 0, 1, Q("26.7 mm")),
    Sketcher.Constraint("DistanceY", 0, 2, -1, 1, Q("14.281159 mm")),
    Sketcher.Constraint("DistanceX", 0, 2, -1, 1, Q("7.144928 mm")),
])
pocket9 = doc.addObject("PartDesign::Pocket", "Pocket008")
body.addObject(pocket9)
pocket9.Profile = sketch15
pocket9.Length = 3.3

sketch16 = doc.addObject("Sketcher::SketchObject", "Sketch015")
body.addObject(sketch16)
sketch16.AttachmentSupport = (doc.XZ_Plane, [""])
sketch16.MapMode = "FlatFace"
sketch16.addGeometry([
    Part.LineSegment(App.Vector(-42, 31, 0), App.Vector(-42, -33, 0)),
    Part.LineSegment(App.Vector(-42, -33, 0), App.Vector(12, -33, 0)),
    Part.LineSegment(App.Vector(12, -33, 0), App.Vector(12, 31, 0)),
    Part.LineSegment(App.Vector(12, 31, 0), App.Vector(-42, 31, 0)),
    Part.LineSegment(App.Vector(5, -25, 0), App.Vector(-35, -25, 0)),
    Part.LineSegment(App.Vector(-35, -25, 0), App.Vector(-35, 24, 0)),
    Part.LineSegment(App.Vector(-35, 24, 0), App.Vector(5, 24, 0)),
    Part.LineSegment(App.Vector(5, 24, 0), App.Vector(5, -25, 0)),
    Part.LineSegment(App.Vector(-3, -13, 0), App.Vector(3, -13, 0)),
    Part.LineSegment(App.Vector(3, -13, 0), App.Vector(3, 12, 0)),
    Part.LineSegment(App.Vector(3, 12, 0), App.Vector(-3, 12, 0)),
    Part.LineSegment(App.Vector(-3, 12, 0), App.Vector(-3, 18, 0)),
    Part.LineSegment(App.Vector(-3, 18, 0), App.Vector(-27, 18, 0)),
    Part.LineSegment(App.Vector(-27, 18, 0), App.Vector(-27, 12, 0)),
    Part.LineSegment(App.Vector(-27, 12, 0), App.Vector(-33, 12, 0)),
    Part.LineSegment(App.Vector(-33, 12, 0), App.Vector(-33, -13, 0)),
    Part.LineSegment(App.Vector(-33, -13, 0), App.Vector(-27, -13, 0)),
    Part.LineSegment(App.Vector(-27, -13, 0), App.Vector(-27, -20, 0)),
    Part.LineSegment(App.Vector(-27, -20, 0), App.Vector(-3, -20, 0)),
    Part.LineSegment(App.Vector(-3, -20, 0), App.Vector(-3, -13, 0)),
], False)
sketch16.addConstraint([
    Sketcher.Constraint("Coincident", 0, 2, 1, 1),
    Sketcher.Constraint("Coincident", 1, 2, 2, 1),
    Sketcher.Constraint("Coincident", 2, 2, 3, 1),
    Sketcher.Constraint("Coincident", 3, 2, 0, 1),
    Sketcher.Constraint("Coincident", 4, 2, 5, 1),
    Sketcher.Constraint("Coincident", 5, 2, 6, 1),
    Sketcher.Constraint("Coincident", 6, 2, 7, 1),
    Sketcher.Constraint("Coincident", 7, 2, 4, 1),
    Sketcher.Constraint("Coincident", 8, 2, 9, 1),
    Sketcher.Constraint("Coincident", 9, 2, 10, 1),
    Sketcher.Constraint("Coincident", 10, 2, 11, 1),
    Sketcher.Constraint("Coincident", 11, 2, 12, 1),
    Sketcher.Constraint("Coincident", 12, 2, 13, 1),
    Sketcher.Constraint("Coincident", 13, 2, 14, 1),
    Sketcher.Constraint("Coincident", 14, 2, 15, 1),
    Sketcher.Constraint("Coincident", 15, 2, 16, 1),
    Sketcher.Constraint("Coincident", 16, 2, 17, 1),
    Sketcher.Constraint("Coincident", 17, 2, 18, 1),
    Sketcher.Constraint("Coincident", 18, 2, 19, 1),
    Sketcher.Constraint("Coincident", 19, 2, 8, 1),
    Sketcher.Constraint("Vertical", 0),
    Sketcher.Constraint("Horizontal", 1),
    Sketcher.Constraint("Vertical", 2),
    Sketcher.Constraint("Horizontal", 3),
    Sketcher.Constraint("Horizontal", 4),
    Sketcher.Constraint("Vertical", 5),
    Sketcher.Constraint("Horizontal", 6),
    Sketcher.Constraint("Vertical", 7),
    Sketcher.Constraint("Horizontal", 8),
    Sketcher.Constraint("Vertical", 9),
    Sketcher.Constraint("Horizontal", 10),
    Sketcher.Constraint("Vertical", 11),
    Sketcher.Constraint("Horizontal", 12),
    Sketcher.Constraint("Vertical", 13),
    Sketcher.Constraint("Horizontal", 14),
    Sketcher.Constraint("Vertical", 15),
    Sketcher.Constraint("Horizontal", 16),
    Sketcher.Constraint("Vertical", 17),
    Sketcher.Constraint("Vertical", 19),
    Sketcher.Constraint("Horizontal", 10, 2, 13, 2),
    Sketcher.Constraint("Horizontal", 8, 2, 15, 2),
    Sketcher.Constraint("Vertical", 13, 2, 16, 2),
    Sketcher.Constraint("Vertical", 11, 2, 18, 2),
    Sketcher.Constraint("Equal", 10, 14),
    Sketcher.Constraint("Equal", 13, 17),
    Sketcher.Constraint("DistanceX", 4, 2, 4, 1, Q("40 mm")),
    Sketcher.Constraint("DistanceX", 8, 1, 8, 2, Q("6 mm")),
    Sketcher.Constraint("DistanceX", 12, 2, 12, 1, Q("24 mm")),
    Sketcher.Constraint("DistanceY", 5, 1, 5, 2, Q("48.8 mm")),
    Sketcher.Constraint("DistanceY", 9, 1, 9, 2, Q("24.8 mm")),
    Sketcher.Constraint("DistanceY", 11, 1, 11, 2, Q("6.6 mm")),
    Sketcher.Constraint("DistanceX", 8, 2, 7, 2, Q("2 mm")),
    Sketcher.Constraint("DistanceY", 7, 2, 8, 2, Q("12 mm")),
    Sketcher.Constraint("DistanceX", 1, 1, 1, 2, Q("54.66 mm")),
    Sketcher.Constraint("DistanceY", 0, 2, 0, 1, Q("63.46 mm")),
    Sketcher.Constraint("DistanceX", 0, 2, -1, 1, Q("42.475 mm")),
    Sketcher.Constraint("DistanceY", 0, 2, -1, 1, Q("32.511 mm")),
    Sketcher.Constraint("DistanceY", 19, 1, 19, 2, Q("6.59499 mm")),
    Sketcher.Constraint("DistanceY", 4, 2, -1, 1, Q("25.181159 mm")),
    Sketcher.Constraint("DistanceX", 4, 2, -1, 1, Q("35.144928 mm")),
])
pocket10 = doc.addObject("PartDesign::Pocket", "Pocket009")
body.addObject(pocket10)
pocket10.Profile = sketch16
pocket10.Length = 3.3

sketch17 = doc.addObject("Sketcher::SketchObject", "Sketch016")
body.addObject(sketch17)
sketch17.AttachmentSupport = (doc.XZ_Plane, [""])
sketch17.MapMode = "FlatFace"
sketch17.addGeometry([
    Part.LineSegment(App.Vector(-34.4, -8.5, 0), App.Vector(-34.4, -13, 0)),
    Part.LineSegment(App.Vector(-34.4, -13, 0), App.Vector(-30.6, -13, 0)),
    Part.LineSegment(App.Vector(-30.6, -13, 0), App.Vector(-30.6, -8.5, 0)),
    Part.LineSegment(App.Vector(-30.6, -8.5, 0), App.Vector(-34.4, -8.5, 0)),
], False)
sketch17.addGeometry(Part.LineSegment(App.Vector(-30.6, -13, 0), App.Vector(-30.6, -8.5, 0)), True)
sketch17.addConstraint([
    Sketcher.Constraint("Coincident", 0, 2, 1, 1),
    Sketcher.Constraint("Coincident", 1, 2, 2, 1),
    Sketcher.Constraint("Coincident", 2, 2, 3, 1),
    Sketcher.Constraint("Coincident", 3, 2, 0, 1),
    Sketcher.Constraint("Vertical", 0),
    Sketcher.Constraint("Horizontal", 1),
    Sketcher.Constraint("Vertical", 2),
    Sketcher.Constraint("Horizontal", 3),
    Sketcher.Constraint("Vertical", 4),
    Sketcher.Constraint("Coincident", 4, 1, 1, 2),
    Sketcher.Constraint("Horizontal", 3, 2, 4, 2),
    Sketcher.Constraint("DistanceX", 1, 1, 1, 2, Q("3.8 mm")),
    Sketcher.Constraint("DistanceY", 0, 2, 0, 1, Q("4.5 mm")),
    Sketcher.Constraint("DistanceY", 0, 2, -1, 1, Q("12.981159 mm")),
    Sketcher.Constraint("DistanceX", 0, 2, -1, 1, Q("34.444928 mm")),
])
groove = doc.addObject("PartDesign::Groove", "Groove")
body.addObject(groove)
groove.Profile = sketch17
groove.ReferenceAxis = (sketch17, ["Axis0"])
groove.Angle = 360
doc.recompute()

fillet = doc.addObject("PartDesign::Fillet", "Fillet")
body.addObject(fillet)
fillet.Base = (groove, edges_at(groove, [
    (-3.145, 2.05, -13.181),
    (-27.145, 2.05, -13.181),
    (-27.145, 2.05, 11.619),
    (-3.145, 2.05, 11.619),
]))
fillet.Radius = 2

doc.recompute()
